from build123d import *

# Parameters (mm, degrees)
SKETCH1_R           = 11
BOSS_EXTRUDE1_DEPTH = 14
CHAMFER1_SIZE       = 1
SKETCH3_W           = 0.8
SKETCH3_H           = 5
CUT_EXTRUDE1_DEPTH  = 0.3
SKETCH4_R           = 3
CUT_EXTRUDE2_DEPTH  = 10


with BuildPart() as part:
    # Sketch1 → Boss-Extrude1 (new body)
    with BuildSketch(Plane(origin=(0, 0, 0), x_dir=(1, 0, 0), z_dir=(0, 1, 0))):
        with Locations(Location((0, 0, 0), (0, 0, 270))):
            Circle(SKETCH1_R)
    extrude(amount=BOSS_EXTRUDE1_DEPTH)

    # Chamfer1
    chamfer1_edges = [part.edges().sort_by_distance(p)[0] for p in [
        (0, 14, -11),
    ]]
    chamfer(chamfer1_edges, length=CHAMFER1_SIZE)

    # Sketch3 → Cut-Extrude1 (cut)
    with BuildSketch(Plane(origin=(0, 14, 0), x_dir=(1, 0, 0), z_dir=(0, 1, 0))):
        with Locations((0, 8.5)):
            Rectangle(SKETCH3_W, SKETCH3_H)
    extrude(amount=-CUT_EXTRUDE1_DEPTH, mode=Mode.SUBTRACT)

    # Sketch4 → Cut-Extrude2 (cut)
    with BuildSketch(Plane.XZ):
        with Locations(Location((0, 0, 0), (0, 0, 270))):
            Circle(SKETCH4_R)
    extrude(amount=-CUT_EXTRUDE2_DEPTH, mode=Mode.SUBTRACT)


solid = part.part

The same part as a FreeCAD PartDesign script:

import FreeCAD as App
import Part
import Sketcher


def edges_at(feature, points):
    """Names of the edges that pass closest to the given points."""
    edges = feature.Shape.Edges
    near = lambda p: min(range(len(edges)), key=lambda i: edges[i].distToShape(Part.Vertex(*p))[0])
    return sorted({f"Edge{near(p) + 1}" for p in points})

doc = App.newDocument("Part")
body = doc.addObject("PartDesign::Body", "Body")

# Sketch on XZ plane
sketch1 = doc.addObject("Sketcher::SketchObject", "Sketch")
body.addObject(sketch1)
sketch1.AttachmentSupport = (doc.XZ_Plane, [""])
sketch1.MapMode = "FlatFace"
sketch1.addGeometry(Part.Circle(App.Vector(0, 0, 0), App.Vector(0, 0, 1), 11), False)
sketch1.addConstraint([
    Sketcher.Constraint("Coincident", 0, 3, -1, 1),
    Sketcher.Constraint("Diameter", 0, 22.0),
])
pad1 = doc.addObject("PartDesign::Pad", "Pad")
body.addObject(pad1)
pad1.Profile = sketch1
pad1.Length = 14
pad1.Reversed = True
doc.recompute()

chamfer = doc.addObject("PartDesign::Chamfer", "Chamfer")
body.addObject(chamfer)
chamfer.Base = (pad1, edges_at(pad1, [(0, 14, -11)]))
chamfer.Size = 1

# Sketch on XZ plane
sketch2 = doc.addObject("Sketcher::SketchObject", "Sketch001")
body.addObject(sketch2)
sketch2.AttachmentSupport = (doc.XZ_Plane, [""])
sketch2.MapMode = "FlatFace"
sketch2.AttachmentOffset = App.Placement(App.Vector(0, 0, -14), App.Rotation())
sketch2.addGeometry([
    Part.LineSegment(App.Vector(-0.4, -11, 0), App.Vector(-0.4, -6, 0)),
    Part.LineSegment(App.Vector(-0.4, -6, 0), App.Vector(0.4, -6, 0)),
    Part.LineSegment(App.Vector(0.4, -6, 0), App.Vector(0.4, -11, 0)),
    Part.LineSegment(App.Vector(0.4, -11, 0), App.Vector(-0.4, -11, 0)),
], False)
sketch2.addConstraint([
    Sketcher.Constraint("Coincident", 0, 2, 1, 1),
    Sketcher.Constraint("Coincident", 1, 2, 2, 1),
    Sketcher.Constraint("Coincident", 2, 2, 3, 1),
    Sketcher.Constraint("Coincident", 3, 2, 0, 1),
    Sketcher.Constraint("Vertical", 0),
    Sketcher.Constraint("Horizontal", 1),
    Sketcher.Constraint("Vertical", 2),
    Sketcher.Constraint("Horizontal", 3),
    Sketcher.Constraint("DistanceY", 0, 1, 0, 2, 5.0),
    Sketcher.Constraint("DistanceX", 1, 1, 1, 2, 0.8),
    Sketcher.Constraint("DistanceY", 0, 2, -1, 1, 6.0),
    Sketcher.Constraint("DistanceX", 0, 2, -1, 1, 0.4),
])
pocket1 = doc.addObject("PartDesign::Pocket", "Pocket")
body.addObject(pocket1)
pocket1.Profile = sketch2
pocket1.Length = 0.3
pocket1.Reversed = True

# Sketch on XZ plane
sketch3 = doc.addObject("Sketcher::SketchObject", "Sketch002")
body.addObject(sketch3)
sketch3.AttachmentSupport = (doc.XZ_Plane, [""])
sketch3.MapMode = "FlatFace"
sketch3.addGeometry(Part.Circle(App.Vector(0, 0, 0), App.Vector(0, 0, 1), 3), False)
sketch3.addConstraint([
    Sketcher.Constraint("Coincident", 0, 3, -1, 1),
    Sketcher.Constraint("Diameter", 0, 6.0),
])
pocket2 = doc.addObject("PartDesign::Pocket", "Pocket001")
body.addObject(pocket2)
pocket2.Profile = sketch3
pocket2.Length = 10

doc.recompute()
